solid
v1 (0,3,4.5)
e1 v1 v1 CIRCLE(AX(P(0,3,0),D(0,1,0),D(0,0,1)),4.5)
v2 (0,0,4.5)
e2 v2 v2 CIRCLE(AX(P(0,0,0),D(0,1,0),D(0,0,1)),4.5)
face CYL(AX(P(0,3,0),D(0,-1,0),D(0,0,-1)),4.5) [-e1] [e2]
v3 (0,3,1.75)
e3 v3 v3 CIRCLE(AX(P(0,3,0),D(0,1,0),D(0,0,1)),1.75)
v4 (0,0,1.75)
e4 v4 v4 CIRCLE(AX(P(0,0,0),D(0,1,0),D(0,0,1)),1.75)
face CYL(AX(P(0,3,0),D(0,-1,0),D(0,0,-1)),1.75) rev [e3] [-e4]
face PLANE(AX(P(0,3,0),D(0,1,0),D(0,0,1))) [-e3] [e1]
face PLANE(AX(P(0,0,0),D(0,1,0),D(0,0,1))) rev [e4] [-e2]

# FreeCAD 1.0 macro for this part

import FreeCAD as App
import Part
import Sketcher

V = App.Vector

doc = App.newDocument("Part")
body = doc.addObject("PartDesign::Body", "Body")

# Sketch on XZ plane
sketch1 = body.newObject("Sketcher::SketchObject", "Sketch")
sketch1.AttachmentSupport = (doc.getObject("XZ_Plane"), [""])
sketch1.MapMode = "FlatFace"
sketch1.addGeometry(Part.Circle(V(0, 0, 0), V(0, 0, 1), 4.5), False)
sketch1.addGeometry(Part.Circle(V(0, 0, 0), V(0, 0, 1), 1.8), False)
sketch1.addConstraint(Sketcher.Constraint("Coincident", 0, 3, -1, 1))
sketch1.addConstraint(Sketcher.Constraint("Coincident", 1, 3, -1, 1))
sketch1.addConstraint(Sketcher.Constraint("Diameter", 0, 9.0))
sketch1.addConstraint(Sketcher.Constraint("Diameter", 1, 3.5))
pad1 = body.newObject("PartDesign::Pad", "Pad")
pad1.Profile = sketch1
pad1.Length = 3
pad1.Reversed = True

doc.recompute()
